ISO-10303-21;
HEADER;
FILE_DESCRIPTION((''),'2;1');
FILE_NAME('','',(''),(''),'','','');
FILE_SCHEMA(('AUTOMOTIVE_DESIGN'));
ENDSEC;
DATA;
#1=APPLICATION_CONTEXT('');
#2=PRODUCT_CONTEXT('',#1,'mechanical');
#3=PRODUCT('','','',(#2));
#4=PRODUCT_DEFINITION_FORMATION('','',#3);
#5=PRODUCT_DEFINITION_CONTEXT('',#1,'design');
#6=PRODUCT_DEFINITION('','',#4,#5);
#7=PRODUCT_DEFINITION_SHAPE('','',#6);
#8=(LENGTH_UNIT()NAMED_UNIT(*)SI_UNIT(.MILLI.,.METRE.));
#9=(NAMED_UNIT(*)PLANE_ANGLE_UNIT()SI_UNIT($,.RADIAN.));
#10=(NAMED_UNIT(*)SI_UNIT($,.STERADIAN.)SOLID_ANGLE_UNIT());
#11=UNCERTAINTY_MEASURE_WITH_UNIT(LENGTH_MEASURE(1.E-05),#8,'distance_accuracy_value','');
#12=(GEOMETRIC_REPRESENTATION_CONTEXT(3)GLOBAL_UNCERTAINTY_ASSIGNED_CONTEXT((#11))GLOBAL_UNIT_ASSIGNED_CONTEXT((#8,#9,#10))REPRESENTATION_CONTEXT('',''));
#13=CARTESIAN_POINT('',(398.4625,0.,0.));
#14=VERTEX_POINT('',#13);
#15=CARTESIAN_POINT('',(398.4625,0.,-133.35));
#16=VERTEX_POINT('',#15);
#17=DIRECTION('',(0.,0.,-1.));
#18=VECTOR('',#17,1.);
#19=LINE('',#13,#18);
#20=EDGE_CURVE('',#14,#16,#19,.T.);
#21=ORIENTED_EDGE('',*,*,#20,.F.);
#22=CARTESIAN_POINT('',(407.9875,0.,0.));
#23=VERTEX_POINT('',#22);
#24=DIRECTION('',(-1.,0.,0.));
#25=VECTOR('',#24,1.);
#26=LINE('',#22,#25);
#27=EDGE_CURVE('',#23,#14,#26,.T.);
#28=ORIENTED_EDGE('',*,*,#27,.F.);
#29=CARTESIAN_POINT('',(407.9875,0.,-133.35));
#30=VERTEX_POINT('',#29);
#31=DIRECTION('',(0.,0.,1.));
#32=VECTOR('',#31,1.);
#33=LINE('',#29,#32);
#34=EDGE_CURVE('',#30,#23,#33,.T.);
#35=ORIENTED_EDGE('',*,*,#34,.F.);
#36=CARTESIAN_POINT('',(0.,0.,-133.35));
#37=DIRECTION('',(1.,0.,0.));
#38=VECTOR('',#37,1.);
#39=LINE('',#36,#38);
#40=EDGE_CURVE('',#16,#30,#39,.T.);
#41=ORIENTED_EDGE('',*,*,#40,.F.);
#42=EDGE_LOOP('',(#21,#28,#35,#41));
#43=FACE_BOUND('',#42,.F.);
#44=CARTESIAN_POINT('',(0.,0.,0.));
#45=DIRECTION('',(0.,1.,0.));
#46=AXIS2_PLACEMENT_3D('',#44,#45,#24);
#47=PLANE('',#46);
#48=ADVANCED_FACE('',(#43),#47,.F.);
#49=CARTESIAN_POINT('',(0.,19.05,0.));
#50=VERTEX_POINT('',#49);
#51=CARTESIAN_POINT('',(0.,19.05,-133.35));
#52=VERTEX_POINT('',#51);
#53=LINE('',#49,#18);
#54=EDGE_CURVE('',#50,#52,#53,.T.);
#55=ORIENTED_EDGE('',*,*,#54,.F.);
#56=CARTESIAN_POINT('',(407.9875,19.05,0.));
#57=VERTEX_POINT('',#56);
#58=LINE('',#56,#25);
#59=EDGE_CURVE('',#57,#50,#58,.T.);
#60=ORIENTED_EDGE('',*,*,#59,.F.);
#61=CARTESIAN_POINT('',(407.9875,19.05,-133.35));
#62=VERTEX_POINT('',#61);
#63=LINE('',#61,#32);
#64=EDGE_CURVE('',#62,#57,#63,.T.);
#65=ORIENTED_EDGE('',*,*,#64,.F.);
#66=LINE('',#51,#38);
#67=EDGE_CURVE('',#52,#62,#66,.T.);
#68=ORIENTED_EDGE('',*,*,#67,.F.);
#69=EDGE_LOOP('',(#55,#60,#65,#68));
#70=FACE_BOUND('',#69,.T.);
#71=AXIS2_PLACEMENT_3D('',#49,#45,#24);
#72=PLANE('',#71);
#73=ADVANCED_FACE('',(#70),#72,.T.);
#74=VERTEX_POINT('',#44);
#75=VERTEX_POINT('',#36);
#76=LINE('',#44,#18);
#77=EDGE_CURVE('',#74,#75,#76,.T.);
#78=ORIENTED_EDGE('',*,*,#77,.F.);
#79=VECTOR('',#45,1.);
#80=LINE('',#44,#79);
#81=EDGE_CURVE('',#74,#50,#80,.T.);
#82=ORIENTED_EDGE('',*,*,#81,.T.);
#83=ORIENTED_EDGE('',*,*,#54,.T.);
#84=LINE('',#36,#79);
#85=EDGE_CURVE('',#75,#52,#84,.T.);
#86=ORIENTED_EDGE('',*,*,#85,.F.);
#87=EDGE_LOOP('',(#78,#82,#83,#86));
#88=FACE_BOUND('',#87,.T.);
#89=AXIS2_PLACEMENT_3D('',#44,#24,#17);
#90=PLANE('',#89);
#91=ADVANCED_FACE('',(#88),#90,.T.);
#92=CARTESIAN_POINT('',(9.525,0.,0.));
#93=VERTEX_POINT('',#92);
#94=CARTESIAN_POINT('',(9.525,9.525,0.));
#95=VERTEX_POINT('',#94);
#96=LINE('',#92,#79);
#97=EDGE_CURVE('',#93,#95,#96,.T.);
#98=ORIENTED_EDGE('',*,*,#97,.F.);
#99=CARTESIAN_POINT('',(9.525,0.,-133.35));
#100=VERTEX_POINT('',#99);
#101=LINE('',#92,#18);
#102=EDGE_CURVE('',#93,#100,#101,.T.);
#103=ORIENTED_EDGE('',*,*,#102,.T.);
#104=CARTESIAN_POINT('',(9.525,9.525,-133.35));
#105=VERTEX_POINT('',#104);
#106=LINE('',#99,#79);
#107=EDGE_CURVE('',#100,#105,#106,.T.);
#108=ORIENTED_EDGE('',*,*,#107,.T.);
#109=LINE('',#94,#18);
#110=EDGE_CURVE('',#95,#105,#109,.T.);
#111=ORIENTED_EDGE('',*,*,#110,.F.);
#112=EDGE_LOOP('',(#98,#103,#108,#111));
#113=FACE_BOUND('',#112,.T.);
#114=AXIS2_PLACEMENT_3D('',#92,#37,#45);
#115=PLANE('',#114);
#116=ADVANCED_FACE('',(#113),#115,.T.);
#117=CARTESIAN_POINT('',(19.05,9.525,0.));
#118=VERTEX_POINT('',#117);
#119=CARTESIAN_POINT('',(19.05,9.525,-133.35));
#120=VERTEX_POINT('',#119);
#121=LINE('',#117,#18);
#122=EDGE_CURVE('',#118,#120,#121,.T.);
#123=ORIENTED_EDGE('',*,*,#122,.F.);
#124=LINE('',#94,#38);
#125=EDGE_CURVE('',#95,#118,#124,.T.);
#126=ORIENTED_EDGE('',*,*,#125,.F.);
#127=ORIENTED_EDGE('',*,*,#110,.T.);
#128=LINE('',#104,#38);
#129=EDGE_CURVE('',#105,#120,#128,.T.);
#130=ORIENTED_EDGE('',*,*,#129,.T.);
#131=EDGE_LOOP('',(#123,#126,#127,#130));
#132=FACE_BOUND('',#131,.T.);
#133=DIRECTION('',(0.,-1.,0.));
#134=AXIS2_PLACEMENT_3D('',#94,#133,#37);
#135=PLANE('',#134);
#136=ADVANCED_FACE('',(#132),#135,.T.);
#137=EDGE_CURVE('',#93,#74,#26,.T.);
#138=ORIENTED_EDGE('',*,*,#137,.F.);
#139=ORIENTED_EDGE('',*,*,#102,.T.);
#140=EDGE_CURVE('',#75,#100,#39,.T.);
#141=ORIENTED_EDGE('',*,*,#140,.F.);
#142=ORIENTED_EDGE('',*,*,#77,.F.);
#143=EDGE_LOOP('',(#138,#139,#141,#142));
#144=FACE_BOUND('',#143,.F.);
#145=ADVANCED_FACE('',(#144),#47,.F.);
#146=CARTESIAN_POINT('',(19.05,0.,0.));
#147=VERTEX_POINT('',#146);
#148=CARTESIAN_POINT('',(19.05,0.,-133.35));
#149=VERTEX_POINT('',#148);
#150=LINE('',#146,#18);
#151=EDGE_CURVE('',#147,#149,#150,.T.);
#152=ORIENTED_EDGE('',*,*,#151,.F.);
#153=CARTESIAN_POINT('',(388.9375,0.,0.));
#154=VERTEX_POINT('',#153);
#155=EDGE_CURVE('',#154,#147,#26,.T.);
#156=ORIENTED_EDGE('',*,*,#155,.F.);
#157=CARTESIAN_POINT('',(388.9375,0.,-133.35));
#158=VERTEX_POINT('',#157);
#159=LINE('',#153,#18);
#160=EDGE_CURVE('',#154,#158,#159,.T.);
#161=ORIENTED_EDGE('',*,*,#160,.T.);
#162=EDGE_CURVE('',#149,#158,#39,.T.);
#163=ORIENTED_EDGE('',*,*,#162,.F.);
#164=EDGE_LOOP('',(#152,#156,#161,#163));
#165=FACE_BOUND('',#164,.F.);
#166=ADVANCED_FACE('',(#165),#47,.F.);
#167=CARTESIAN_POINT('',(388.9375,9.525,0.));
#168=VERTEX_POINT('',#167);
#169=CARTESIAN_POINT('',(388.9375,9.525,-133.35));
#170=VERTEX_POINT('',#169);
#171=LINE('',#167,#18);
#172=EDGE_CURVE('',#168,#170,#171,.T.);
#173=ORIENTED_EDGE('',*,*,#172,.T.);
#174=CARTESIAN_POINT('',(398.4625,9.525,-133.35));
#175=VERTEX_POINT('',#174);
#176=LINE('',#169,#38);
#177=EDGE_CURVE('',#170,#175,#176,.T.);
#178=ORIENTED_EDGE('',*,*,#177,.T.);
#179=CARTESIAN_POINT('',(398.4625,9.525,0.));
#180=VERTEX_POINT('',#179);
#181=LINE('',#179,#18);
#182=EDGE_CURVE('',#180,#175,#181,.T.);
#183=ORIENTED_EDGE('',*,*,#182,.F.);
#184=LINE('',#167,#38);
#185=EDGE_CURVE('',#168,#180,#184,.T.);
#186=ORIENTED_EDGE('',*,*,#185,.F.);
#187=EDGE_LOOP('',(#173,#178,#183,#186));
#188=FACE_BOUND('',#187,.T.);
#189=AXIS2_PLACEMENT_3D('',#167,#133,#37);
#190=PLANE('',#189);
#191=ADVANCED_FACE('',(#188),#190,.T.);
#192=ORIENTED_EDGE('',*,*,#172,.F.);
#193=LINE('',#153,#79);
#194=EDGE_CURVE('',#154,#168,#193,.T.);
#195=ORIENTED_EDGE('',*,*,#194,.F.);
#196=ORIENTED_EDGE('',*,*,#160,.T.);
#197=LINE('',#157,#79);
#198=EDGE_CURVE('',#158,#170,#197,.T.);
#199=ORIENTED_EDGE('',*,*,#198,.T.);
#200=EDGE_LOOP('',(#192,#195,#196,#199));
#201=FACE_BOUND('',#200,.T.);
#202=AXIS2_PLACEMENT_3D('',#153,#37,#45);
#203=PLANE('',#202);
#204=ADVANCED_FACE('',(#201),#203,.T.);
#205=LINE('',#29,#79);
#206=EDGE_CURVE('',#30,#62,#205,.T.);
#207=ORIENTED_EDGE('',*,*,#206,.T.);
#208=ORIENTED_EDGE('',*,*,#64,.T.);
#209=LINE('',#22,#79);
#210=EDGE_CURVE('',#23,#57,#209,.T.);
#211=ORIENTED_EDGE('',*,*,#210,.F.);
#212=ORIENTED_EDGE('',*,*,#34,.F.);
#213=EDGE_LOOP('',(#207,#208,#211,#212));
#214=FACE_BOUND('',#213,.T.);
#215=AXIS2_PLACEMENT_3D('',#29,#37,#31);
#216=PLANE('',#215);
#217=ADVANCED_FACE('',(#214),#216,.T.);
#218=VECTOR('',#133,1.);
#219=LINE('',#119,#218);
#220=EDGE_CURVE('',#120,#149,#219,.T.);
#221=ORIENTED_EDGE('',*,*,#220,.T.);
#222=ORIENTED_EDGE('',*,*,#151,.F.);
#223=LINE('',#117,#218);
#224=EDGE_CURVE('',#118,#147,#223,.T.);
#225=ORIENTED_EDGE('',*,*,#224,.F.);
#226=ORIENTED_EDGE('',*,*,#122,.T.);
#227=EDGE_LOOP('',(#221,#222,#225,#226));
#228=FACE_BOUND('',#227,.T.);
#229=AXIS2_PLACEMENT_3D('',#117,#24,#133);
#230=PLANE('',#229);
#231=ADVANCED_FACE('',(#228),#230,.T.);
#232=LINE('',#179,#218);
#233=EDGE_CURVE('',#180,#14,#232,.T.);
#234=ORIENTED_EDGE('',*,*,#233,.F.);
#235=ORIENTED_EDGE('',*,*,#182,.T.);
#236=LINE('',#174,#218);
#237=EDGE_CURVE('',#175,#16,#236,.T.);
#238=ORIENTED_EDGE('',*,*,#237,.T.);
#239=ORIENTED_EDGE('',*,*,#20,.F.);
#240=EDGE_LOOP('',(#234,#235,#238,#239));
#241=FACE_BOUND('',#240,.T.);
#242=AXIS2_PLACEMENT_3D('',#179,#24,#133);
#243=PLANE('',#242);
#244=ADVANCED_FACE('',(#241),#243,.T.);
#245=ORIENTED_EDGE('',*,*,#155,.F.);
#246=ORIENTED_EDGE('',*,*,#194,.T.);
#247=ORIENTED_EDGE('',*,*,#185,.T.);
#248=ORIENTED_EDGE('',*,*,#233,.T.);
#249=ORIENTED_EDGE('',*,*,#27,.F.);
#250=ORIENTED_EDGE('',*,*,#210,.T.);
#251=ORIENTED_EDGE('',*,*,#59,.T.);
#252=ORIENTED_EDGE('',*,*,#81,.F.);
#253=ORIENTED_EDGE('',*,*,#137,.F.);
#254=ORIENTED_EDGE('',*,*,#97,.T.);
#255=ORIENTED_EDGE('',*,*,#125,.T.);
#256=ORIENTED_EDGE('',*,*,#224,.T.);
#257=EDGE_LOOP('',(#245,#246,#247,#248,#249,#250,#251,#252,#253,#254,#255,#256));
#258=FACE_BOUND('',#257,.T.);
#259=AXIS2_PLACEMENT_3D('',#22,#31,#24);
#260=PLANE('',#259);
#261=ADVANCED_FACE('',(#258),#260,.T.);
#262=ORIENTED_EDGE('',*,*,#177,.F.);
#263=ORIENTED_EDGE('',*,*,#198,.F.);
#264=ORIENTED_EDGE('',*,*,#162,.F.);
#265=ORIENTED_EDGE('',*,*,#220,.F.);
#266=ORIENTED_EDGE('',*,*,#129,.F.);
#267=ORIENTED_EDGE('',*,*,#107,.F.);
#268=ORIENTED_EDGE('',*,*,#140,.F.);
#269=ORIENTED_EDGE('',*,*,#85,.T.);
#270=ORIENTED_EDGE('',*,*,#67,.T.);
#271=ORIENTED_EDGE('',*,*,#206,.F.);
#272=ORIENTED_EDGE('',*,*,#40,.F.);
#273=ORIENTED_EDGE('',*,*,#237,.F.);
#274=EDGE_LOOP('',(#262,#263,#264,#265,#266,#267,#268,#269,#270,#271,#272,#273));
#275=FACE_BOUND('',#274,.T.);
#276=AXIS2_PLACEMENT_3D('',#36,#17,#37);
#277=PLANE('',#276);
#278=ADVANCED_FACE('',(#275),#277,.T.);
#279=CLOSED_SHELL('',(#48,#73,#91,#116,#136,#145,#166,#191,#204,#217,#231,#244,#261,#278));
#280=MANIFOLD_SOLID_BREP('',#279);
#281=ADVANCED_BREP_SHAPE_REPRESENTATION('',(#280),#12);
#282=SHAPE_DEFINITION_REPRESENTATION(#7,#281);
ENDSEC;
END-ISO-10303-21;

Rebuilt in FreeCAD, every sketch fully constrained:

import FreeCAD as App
import Part
import Sketcher
from FreeCAD import Vector
Q = App.Units.Quantity


def add_polygon(sketch, points):
    """Adds a closed chain of lines whose ends are joined by coincident constraints."""
    first, n = sketch.GeometryCount, len(points)
    for a, b in zip(points, points[1:] + points[:1]):
        sketch.addGeometry(Part.LineSegment(App.Vector(*a, 0), App.Vector(*b, 0)), False)
    for i in range(n):
        sketch.addConstraint(Sketcher.Constraint("Coincident", first + i, 2, first + (i + 1) % n, 1))

doc = App.newDocument("Part")
body = doc.addObject("PartDesign::Body", "Body")

# Sketch on XZ plane
sketch1 = body.newObject("Sketcher::SketchObject", "Sketch")
sketch1.AttachmentSupport = (doc.getObject("XZ_Plane"), [""])
sketch1.MapMode = "FlatFace"
add_polygon(sketch1, [(408, -133), (0, -133), (0, 0), (408, 0)])  # lines 0-3
sketch1.addConstraint([
    Sketcher.Constraint("Horizontal", 0),
    Sketcher.Constraint("Vertical", 1),
    Sketcher.Constraint("Horizontal", 2),
    Sketcher.Constraint("Vertical", 3),
    Sketcher.Constraint("Coincident", 1, 2, -1, 1),
    Sketcher.Constraint("DistanceY", 1, 1, 1, 2, Q("5.25 in")),
    Sketcher.Constraint("DistanceX", 0, 2, 0, 1, Q("16.0625 in")),
])
pad1 = body.newObject("PartDesign::Pad", "Pad")
pad1.Profile = sketch1
pad1.Length = Q("0.75 in")
pad1.Reversed = True

# Sketch on XY plane
sketch2 = body.newObject("Sketcher::SketchObject", "Sketch001")
sketch2.AttachmentSupport = (doc.getObject("XY_Plane"), [""])
sketch2.MapMode = "FlatFace"
add_polygon(sketch2, [(10, 0), (19, 0), (19, 10), (10, 10)])  # lines 0-3
add_polygon(sketch2, [(389, 10), (389, 0), (398, 0), (398, 10)])  # lines 4-7
sketch2.addConstraint([
    Sketcher.Constraint("Horizontal", 0),
    Sketcher.Constraint("Vertical", 1),
    Sketcher.Constraint("Horizontal", 2),
    Sketcher.Constraint("Vertical", 3),
    Sketcher.Constraint("Vertical", 4),
    Sketcher.Constraint("Horizontal", 5),
    Sketcher.Constraint("Vertical", 6),
    Sketcher.Constraint("Horizontal", 7),
    Sketcher.Constraint("PointOnObject", 0, 2, -1),
    Sketcher.Constraint("PointOnObject", 4, 2, -1),
    Sketcher.Constraint("Horizontal", 2, 2, 6, 2),
    Sketcher.Constraint("Equal", 2, 5),
    Sketcher.Constraint("Equal", 7, 1),
    Sketcher.Constraint("DistanceX", 0, 1, 0, 2, Q("0.375 in")),
    Sketcher.Constraint("DistanceX", -1, 1, 2, 2, Q("0.375 in")),
    Sketcher.Constraint("DistanceX", -1, 1, 4, 2, Q("15.3125 in")),
])
pocket1 = body.newObject("PartDesign::Pocket", "Pocket")
pocket1.Profile = sketch2
pocket1.Length = Q("5.25 in")

doc.recompute()
